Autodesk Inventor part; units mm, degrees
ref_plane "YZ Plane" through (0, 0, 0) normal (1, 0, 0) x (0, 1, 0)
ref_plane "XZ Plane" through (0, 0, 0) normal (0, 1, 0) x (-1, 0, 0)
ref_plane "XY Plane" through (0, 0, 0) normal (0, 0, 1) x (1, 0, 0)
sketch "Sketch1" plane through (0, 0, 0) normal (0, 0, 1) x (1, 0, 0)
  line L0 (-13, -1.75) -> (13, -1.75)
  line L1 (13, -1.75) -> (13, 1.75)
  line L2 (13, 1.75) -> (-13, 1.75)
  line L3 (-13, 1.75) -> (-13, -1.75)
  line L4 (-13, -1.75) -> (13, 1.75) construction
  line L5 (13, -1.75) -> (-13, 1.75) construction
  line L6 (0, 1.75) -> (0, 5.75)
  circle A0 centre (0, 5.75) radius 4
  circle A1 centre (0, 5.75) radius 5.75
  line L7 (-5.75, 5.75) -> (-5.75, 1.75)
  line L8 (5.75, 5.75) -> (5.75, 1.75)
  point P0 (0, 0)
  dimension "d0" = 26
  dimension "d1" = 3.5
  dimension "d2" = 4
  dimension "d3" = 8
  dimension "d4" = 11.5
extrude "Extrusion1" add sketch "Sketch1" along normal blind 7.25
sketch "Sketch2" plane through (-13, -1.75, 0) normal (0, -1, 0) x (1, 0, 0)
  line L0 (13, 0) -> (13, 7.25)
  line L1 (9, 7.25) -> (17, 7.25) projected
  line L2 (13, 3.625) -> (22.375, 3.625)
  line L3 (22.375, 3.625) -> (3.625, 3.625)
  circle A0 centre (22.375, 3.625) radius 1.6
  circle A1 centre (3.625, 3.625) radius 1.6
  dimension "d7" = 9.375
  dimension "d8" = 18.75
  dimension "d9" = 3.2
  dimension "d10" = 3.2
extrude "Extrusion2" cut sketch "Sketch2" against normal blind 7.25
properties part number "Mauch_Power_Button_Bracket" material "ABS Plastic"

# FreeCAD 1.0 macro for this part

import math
import FreeCAD as App
import Part
import Sketcher
from FreeCAD import Vector
Q = App.Units.Quantity

doc = App.newDocument("Part")
params = doc.addObject("Spreadsheet::Sheet", "Params")
for row, (alias, value) in enumerate([
    ("sketch1_diameter", "8 mm"),
    ("sketch1_width", "26 mm"),
    ("sketch1_height", "4 mm"),
    ("sketch1_radius", "5.75 mm"),
    ("sketch1_height2", "3.5 mm"),
    ("pad1_length", "7.25 mm"),
    ("sketch2_diameter", "3.2 mm"),
    ("pocket1_length", "7.25 mm"),
], start=1):
    params.set(f"A{row}", alias)
    params.set(f"B{row}", "=" + value)
    params.setAlias(f"B{row}", alias)

body = doc.addObject("PartDesign::Body", "Body")

sketch1 = body.newObject("Sketcher::SketchObject", "Sketch")
sketch1.AttachmentSupport = (doc.getObject("XY_Plane"), [""])
sketch1.MapMode = "FlatFace"
sketch1.addGeometry([
    Part.LineSegment(Vector(-13, 1.8, 0), Vector(-13, -1.8, 0)),
    Part.LineSegment(Vector(-13, -1.8, 0), Vector(13, -1.8, 0)),
    Part.LineSegment(Vector(13, -1.8, 0), Vector(13, 1.8, 0)),
    Part.LineSegment(Vector(13, 1.8, 0), Vector(5.8, 1.8, 0)),
    Part.LineSegment(Vector(5.8, 1.8, 0), Vector(5.8, 5.8, 0)),
    Part.ArcOfCircle(Part.Circle(Vector(0, 5.8, 0), Vector(0, 0, 1), 5.8), math.radians(0), math.radians(180)),
    Part.LineSegment(Vector(-5.8, 5.8, 0), Vector(-5.8, 1.8, 0)),
    Part.LineSegment(Vector(-5.8, 1.8, 0), Vector(-13, 1.8, 0)),
    Part.Circle(Vector(0, 5.8, 0), Vector(0, 0, 1), 4),
], False)
sketch1.addConstraint([
    Sketcher.Constraint("Coincident", 0, 2, 1, 1),
    Sketcher.Constraint("Coincident", 1, 2, 2, 1),
    Sketcher.Constraint("Coincident", 2, 2, 3, 1),
    Sketcher.Constraint("Coincident", 3, 2, 4, 1),
    Sketcher.Constraint("Tangent", 4, 2, 5, 1),
    Sketcher.Constraint("Tangent", 5, 2, 6, 1),
    Sketcher.Constraint("Coincident", 6, 2, 7, 1),
    Sketcher.Constraint("Coincident", 7, 2, 0, 1),
    Sketcher.Constraint("Vertical", 0),
    Sketcher.Constraint("Horizontal", 1),
    Sketcher.Constraint("Vertical", 2),
    Sketcher.Constraint("Horizontal", 3),
    Sketcher.Constraint("Vertical", 4),
    Sketcher.Constraint("Vertical", 6),
    Sketcher.Constraint("Horizontal", 7),
    Sketcher.Constraint("Coincident", 8, 3, 5, 3),
    Sketcher.Constraint("Symmetric", 0, 2, 2, 2, -1, 1),
    Sketcher.Constraint("Symmetric", 3, 2, 6, 2, -2),
    Sketcher.Constraint("Diameter", 8, Q("8 mm")),
    Sketcher.Constraint("DistanceX", 1, 1, 1, 2, Q("26 mm")),
    Sketcher.Constraint("DistanceY", 4, 1, 4, 2, Q("4 mm")),
    Sketcher.Constraint("Radius", 5, Q("5.75 mm")),
    Sketcher.Constraint("DistanceY", 0, 2, 0, 1, Q("3.5 mm")),
])
sketch1.setExpression("Constraints[18]", "Params.sketch1_diameter")
sketch1.setExpression("Constraints[19]", "Params.sketch1_width")
sketch1.setExpression("Constraints[20]", "Params.sketch1_height")
sketch1.setExpression("Constraints[21]", "Params.sketch1_radius")
sketch1.setExpression("Constraints[22]", "Params.sketch1_height2")
pad1 = body.newObject("PartDesign::Pad", "Pad")
pad1.Profile = sketch1
pad1.setExpression("Length", "Params.pad1_length")

sketch2 = body.newObject("Sketcher::SketchObject", "Sketch001")
sketch2.AttachmentSupport = (doc.getObject("XZ_Plane"), [""])
sketch2.MapMode = "FlatFace"
sketch2.AttachmentOffset = App.Placement(Vector(0, 0, 1.75), App.Rotation())
sketch2.addGeometry([
    Part.Circle(Vector(9.4, 3.6, 0), Vector(0, 0, 1), 1.6),
    Part.Circle(Vector(-9.4, 3.6, 0), Vector(0, 0, 1), 1.6),
], False)
sketch2.addConstraint([
    Sketcher.Constraint("Equal", 0, 1),
    Sketcher.Constraint("Symmetric", 0, 3, 1, 3, -2),
    Sketcher.Constraint("Diameter", 0, Q("3.2 mm")),
    Sketcher.Constraint("DistanceX", 1, 3, 0, 3, Q("18.75 mm")),
    Sketcher.Constraint("DistanceY", -1, 1, 0, 3, Q("3.625 mm")),
])
sketch2.setExpression("Constraints[2]", "Params.sketch2_diameter")
pocket1 = body.newObject("PartDesign::Pocket", "Pocket")
pocket1.Profile = sketch2
pocket1.setExpression("Length", "Params.pocket1_length")

doc.recompute()
